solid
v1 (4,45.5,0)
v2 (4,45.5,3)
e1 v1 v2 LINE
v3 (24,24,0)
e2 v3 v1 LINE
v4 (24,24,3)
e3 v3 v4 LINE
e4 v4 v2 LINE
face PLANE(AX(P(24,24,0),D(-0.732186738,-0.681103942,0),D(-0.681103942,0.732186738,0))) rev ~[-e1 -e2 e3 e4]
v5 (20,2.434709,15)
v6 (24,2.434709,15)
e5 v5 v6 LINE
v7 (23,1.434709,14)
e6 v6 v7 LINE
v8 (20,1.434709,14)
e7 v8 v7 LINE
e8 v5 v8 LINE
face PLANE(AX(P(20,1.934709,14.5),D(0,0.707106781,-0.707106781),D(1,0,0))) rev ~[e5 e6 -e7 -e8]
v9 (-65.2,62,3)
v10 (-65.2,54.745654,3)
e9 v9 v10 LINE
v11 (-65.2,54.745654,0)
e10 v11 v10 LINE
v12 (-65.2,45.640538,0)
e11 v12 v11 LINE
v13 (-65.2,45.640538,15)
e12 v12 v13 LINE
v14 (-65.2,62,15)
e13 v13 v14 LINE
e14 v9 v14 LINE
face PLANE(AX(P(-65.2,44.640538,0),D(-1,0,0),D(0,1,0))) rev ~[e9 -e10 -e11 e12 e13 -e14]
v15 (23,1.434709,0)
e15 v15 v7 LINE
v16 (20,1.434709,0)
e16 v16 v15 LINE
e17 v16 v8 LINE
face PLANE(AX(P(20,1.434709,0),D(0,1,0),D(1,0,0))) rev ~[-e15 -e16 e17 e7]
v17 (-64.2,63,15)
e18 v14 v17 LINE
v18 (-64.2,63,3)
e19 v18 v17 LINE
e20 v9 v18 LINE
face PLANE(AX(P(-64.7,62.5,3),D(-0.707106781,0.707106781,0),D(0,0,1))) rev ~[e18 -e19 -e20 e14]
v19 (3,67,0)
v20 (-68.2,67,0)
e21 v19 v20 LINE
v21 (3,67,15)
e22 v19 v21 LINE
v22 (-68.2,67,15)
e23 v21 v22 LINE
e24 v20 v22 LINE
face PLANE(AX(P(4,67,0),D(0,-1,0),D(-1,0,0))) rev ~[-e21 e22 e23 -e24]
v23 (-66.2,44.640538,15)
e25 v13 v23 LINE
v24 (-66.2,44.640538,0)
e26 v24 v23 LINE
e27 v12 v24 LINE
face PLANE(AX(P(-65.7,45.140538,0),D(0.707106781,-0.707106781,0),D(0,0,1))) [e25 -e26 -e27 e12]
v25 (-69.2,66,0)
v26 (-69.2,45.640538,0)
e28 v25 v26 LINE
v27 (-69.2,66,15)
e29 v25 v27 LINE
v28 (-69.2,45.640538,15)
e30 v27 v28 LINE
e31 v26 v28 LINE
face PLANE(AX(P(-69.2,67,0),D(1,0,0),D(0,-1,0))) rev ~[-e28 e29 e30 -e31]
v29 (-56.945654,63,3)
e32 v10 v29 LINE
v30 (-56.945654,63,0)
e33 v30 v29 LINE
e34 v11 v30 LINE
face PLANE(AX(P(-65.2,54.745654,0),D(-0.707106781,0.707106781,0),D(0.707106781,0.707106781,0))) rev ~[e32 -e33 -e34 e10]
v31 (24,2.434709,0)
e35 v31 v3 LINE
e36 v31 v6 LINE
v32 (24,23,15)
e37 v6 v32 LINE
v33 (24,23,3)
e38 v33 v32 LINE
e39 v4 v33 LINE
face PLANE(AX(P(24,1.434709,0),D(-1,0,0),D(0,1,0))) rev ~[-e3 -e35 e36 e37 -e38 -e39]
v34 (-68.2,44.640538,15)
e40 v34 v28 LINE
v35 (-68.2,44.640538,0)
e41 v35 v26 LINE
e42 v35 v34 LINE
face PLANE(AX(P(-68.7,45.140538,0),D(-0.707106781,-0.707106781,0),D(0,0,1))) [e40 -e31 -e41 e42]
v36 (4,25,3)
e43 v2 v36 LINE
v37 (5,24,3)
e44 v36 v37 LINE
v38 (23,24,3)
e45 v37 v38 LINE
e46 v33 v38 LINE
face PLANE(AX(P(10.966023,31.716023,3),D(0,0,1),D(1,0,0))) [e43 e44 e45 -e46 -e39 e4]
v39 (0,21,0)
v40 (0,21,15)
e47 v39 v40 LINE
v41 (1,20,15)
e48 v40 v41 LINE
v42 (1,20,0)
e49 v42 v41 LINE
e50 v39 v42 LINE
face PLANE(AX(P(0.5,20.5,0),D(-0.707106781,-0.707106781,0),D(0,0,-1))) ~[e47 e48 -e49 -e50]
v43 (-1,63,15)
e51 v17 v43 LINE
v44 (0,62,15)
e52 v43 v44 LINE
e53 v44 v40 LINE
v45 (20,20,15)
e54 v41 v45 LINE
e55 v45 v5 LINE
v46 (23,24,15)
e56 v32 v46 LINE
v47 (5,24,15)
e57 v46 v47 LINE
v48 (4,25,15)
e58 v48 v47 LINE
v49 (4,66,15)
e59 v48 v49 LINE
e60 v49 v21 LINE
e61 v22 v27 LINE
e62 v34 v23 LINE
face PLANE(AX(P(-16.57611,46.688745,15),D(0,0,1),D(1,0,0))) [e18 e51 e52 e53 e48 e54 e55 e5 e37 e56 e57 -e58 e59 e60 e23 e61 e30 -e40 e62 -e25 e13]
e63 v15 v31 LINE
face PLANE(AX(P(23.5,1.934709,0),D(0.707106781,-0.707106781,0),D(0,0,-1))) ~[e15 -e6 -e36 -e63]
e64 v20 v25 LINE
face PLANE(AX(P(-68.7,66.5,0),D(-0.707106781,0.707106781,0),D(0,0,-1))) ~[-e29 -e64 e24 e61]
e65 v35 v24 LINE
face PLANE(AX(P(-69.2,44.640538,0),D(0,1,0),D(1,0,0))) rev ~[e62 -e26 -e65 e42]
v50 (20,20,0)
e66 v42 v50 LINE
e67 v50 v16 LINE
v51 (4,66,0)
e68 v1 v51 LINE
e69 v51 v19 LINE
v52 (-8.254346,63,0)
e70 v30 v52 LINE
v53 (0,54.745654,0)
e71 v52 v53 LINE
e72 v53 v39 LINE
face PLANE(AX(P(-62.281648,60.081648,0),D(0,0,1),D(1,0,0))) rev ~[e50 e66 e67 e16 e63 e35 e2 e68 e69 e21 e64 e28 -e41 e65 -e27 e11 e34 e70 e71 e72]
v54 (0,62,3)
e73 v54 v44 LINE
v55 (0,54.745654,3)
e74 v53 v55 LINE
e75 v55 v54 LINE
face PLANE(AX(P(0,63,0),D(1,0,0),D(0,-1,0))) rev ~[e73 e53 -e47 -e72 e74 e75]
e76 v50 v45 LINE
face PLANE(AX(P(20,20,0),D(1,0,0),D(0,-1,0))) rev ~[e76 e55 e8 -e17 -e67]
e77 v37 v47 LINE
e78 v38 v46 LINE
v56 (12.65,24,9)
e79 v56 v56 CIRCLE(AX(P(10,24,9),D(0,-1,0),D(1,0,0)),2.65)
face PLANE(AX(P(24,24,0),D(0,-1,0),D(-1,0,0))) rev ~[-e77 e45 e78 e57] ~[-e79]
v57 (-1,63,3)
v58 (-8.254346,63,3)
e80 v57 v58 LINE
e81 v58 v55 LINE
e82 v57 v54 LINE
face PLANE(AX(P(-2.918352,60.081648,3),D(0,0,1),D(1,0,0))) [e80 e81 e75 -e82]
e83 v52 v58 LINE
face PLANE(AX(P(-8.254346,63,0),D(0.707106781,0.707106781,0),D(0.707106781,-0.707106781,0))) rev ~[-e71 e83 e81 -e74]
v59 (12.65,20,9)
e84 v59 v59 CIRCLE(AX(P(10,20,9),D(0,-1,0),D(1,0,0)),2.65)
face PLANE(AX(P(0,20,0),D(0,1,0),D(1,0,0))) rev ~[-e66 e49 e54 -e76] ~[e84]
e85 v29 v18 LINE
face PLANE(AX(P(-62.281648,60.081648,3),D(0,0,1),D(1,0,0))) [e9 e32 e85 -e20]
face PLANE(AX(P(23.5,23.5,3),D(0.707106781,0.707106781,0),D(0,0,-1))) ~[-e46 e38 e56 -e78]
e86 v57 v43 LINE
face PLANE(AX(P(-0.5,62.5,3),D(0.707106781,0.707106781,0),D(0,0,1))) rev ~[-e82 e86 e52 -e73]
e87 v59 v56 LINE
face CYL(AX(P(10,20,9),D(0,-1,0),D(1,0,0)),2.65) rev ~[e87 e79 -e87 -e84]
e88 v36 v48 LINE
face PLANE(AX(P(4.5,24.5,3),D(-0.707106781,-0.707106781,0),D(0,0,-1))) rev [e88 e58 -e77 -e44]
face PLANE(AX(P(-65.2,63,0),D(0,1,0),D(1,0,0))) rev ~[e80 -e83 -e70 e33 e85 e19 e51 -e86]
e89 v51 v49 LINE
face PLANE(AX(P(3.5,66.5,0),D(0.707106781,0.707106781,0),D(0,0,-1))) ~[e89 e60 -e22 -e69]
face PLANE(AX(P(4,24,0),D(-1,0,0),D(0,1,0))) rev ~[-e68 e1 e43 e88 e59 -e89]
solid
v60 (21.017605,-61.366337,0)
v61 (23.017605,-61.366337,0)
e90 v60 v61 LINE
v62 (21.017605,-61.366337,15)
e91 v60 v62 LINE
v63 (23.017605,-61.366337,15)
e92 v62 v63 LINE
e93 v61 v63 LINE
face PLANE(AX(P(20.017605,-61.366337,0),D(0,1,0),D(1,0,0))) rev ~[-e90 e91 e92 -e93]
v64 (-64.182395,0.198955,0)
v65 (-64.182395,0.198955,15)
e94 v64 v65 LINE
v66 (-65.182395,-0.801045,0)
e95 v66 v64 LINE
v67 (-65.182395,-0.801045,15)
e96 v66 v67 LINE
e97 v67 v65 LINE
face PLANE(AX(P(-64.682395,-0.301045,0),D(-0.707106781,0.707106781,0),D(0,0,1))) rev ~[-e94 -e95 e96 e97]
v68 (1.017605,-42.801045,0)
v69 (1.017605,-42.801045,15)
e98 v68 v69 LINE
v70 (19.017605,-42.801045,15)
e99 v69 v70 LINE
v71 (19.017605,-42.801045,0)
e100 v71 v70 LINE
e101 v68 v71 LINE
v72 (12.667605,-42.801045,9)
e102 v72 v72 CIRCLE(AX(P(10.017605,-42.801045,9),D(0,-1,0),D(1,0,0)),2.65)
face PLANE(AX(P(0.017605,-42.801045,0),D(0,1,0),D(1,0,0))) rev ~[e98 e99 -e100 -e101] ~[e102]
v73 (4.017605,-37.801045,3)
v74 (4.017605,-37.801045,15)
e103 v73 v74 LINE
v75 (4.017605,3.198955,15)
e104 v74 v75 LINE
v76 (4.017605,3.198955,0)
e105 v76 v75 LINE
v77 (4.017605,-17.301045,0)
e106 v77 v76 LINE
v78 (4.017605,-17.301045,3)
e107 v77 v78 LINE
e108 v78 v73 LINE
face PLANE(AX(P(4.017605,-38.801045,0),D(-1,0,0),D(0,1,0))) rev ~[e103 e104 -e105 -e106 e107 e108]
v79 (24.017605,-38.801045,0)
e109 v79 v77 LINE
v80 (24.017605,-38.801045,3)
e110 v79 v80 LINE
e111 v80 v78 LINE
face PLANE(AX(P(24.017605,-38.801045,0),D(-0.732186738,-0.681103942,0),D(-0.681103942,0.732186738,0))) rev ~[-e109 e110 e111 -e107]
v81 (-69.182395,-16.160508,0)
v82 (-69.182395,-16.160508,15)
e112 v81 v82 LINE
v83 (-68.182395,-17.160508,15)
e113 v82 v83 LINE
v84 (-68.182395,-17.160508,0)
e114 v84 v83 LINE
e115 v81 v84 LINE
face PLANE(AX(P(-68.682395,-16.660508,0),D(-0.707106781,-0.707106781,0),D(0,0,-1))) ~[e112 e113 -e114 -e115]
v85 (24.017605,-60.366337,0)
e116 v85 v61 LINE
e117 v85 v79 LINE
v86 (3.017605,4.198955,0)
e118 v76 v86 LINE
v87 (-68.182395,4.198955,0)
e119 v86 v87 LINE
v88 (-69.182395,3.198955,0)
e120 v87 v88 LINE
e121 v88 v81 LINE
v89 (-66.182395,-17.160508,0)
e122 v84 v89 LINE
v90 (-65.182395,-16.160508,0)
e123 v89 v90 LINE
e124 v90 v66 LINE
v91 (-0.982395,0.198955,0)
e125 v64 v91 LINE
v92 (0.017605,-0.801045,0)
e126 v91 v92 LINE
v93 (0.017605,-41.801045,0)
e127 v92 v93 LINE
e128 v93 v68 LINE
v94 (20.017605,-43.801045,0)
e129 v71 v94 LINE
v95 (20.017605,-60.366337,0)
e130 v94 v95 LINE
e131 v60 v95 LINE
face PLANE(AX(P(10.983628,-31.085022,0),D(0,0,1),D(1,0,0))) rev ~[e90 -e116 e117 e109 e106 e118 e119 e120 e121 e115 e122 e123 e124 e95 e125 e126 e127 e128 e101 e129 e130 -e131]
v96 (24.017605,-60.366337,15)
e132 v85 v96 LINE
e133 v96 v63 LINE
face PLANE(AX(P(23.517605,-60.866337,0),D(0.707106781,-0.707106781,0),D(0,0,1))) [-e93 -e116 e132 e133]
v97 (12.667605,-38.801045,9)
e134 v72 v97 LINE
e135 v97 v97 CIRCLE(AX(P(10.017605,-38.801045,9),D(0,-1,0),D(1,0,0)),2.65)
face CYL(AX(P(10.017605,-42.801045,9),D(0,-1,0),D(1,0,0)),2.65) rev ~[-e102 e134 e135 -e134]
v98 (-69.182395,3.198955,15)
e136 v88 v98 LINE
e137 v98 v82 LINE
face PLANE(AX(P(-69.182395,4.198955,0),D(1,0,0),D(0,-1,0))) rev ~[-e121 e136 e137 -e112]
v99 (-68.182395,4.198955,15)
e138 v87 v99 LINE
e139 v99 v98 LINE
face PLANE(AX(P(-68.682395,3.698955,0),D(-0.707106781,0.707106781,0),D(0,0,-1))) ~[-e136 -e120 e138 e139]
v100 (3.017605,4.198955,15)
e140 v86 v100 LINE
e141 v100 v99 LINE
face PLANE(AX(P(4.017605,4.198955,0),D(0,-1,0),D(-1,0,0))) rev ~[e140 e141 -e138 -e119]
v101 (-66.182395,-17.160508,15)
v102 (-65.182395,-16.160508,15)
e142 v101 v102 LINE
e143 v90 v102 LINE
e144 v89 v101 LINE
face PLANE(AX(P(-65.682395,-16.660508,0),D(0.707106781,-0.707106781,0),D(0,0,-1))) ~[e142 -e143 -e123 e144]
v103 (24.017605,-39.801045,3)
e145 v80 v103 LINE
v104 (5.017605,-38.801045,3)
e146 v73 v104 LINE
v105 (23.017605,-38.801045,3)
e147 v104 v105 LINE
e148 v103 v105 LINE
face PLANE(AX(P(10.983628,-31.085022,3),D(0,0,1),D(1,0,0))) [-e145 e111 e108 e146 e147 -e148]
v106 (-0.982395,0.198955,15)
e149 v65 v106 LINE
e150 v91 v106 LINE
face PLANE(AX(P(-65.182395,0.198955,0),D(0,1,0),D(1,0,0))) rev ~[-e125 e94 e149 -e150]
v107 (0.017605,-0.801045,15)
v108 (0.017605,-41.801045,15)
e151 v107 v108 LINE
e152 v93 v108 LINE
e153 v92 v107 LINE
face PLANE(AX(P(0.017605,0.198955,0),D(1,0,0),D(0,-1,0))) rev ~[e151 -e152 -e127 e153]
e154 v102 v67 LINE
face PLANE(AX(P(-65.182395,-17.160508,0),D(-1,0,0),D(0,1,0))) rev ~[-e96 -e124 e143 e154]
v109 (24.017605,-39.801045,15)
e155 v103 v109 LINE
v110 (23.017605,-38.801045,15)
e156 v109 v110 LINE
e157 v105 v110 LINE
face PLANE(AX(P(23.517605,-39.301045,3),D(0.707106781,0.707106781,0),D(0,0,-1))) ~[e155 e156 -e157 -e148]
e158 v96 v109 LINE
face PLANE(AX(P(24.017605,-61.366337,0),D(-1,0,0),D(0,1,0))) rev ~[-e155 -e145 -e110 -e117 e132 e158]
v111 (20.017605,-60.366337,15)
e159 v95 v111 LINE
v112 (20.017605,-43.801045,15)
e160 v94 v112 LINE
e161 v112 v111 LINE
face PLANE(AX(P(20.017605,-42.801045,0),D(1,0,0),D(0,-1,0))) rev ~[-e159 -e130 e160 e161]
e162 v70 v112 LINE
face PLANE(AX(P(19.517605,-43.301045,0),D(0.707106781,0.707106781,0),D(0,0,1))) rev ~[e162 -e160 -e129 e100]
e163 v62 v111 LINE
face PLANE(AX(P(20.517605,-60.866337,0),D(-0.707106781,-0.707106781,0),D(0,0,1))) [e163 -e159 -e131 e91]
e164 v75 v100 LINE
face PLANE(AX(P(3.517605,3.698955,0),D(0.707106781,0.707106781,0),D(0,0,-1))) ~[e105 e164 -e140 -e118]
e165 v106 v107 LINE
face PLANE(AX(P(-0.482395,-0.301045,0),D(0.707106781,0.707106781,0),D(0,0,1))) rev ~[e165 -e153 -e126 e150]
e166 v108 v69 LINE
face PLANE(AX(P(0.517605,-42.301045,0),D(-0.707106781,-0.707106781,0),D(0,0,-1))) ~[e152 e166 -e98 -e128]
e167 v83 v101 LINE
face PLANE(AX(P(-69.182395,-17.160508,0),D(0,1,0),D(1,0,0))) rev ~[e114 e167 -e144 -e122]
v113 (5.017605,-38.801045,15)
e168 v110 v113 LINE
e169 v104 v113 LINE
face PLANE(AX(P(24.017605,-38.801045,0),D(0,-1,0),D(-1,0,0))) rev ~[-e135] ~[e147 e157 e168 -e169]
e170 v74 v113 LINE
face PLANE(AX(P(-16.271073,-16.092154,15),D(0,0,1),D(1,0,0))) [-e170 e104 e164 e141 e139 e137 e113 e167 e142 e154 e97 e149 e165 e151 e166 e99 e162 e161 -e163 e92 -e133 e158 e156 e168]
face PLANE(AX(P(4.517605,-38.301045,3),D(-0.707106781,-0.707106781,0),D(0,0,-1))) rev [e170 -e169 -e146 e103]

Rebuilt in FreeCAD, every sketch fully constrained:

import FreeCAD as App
import Part
import Sketcher
Q = App.Units.Quantity


def edges_at(feature, points):
    """Names of the edges that pass closest to the given points."""
    edges = feature.Shape.Edges
    near = lambda p: min(range(len(edges)), key=lambda i: edges[i].distToShape(Part.Vertex(*p))[0])
    return sorted({f"Edge{near(p) + 1}" for p in points})


def add_polygon(sketch, points):
    """Adds a closed chain of lines whose ends are joined by coincident constraints."""
    first, n = sketch.GeometryCount, len(points)
    for a, b in zip(points, points[1:] + points[:1]):
        sketch.addGeometry(Part.LineSegment(App.Vector(*a, 0), App.Vector(*b, 0)), False)
    for i in range(n):
        sketch.addConstraint(Sketcher.Constraint("Coincident", first + i, 2, first + (i + 1) % n, 1))

doc = App.newDocument("Part")
body = doc.addObject("PartDesign::Body", "Body")

# Sketch on XY plane
sketch1 = doc.addObject("Sketcher::SketchObject", "Sketch")
body.addObject(sketch1)
sketch1.AttachmentSupport = (doc.XY_Plane, [""])
sketch1.MapMode = "FlatFace"
add_polygon(sketch1, [(20, 20), (20, 1.4), (24, 1.4), (24, 24), (4, 24), (4, 67), (-69.2, 67), (-69.2, 44.6), (-65.2, 44.6), (-65.2, 63), (0, 63), (0, 20)])  # lines 0-11
sketch1.addConstraint(Sketcher.Constraint("Vertical", 0))
sketch1.addConstraint(Sketcher.Constraint("Horizontal", 1))
sketch1.addConstraint(Sketcher.Constraint("Vertical", 2))
sketch1.addConstraint(Sketcher.Constraint("Horizontal", 3))
sketch1.addConstraint(Sketcher.Constraint("Vertical", 4))
sketch1.addConstraint(Sketcher.Constraint("Horizontal", 5))
sketch1.addConstraint(Sketcher.Constraint("Vertical", 6))
sketch1.addConstraint(Sketcher.Constraint("Horizontal", 7))
sketch1.addConstraint(Sketcher.Constraint("Vertical", 8))
sketch1.addConstraint(Sketcher.Constraint("Horizontal", 9))
sketch1.addConstraint(Sketcher.Constraint("Vertical", 10))
sketch1.addConstraint(Sketcher.Constraint("Horizontal", 11))
sketch1.addConstraint(Sketcher.Constraint("PointOnObject", 9, 2, -2))
sketch1.addConstraint(Sketcher.Constraint("Equal", 1, 7))
sketch1.addConstraint(Sketcher.Constraint("Equal", 3, 11))
sketch1.addConstraint(Sketcher.Constraint("Equal", 4, 10))
sketch1.addConstraint(Sketcher.Constraint("DistanceX", 1, 1, 1, 2, Q("4 mm")))
sketch1.addConstraint(Sketcher.Constraint("DistanceX", 3, 2, 3, 1, Q("20 mm")))
sketch1.addConstraint(Sketcher.Constraint("DistanceY", 4, 1, 4, 2, Q("43 mm")))
sketch1.addConstraint(Sketcher.Constraint("DistanceX", 5, 2, 5, 1, Q("73.2 mm")))
sketch1.addConstraint(Sketcher.Constraint("DistanceY", -1, 1, 2, 2, Q("24 mm")))
sketch1.addConstraint(Sketcher.Constraint("DistanceY", -1, 1, 8, 2, Q("63 mm")))
sketch1.addConstraint(Sketcher.Constraint("DistanceY", 0, 2, 0, 1, Q("18.565291 mm")))
sketch1.addConstraint(Sketcher.Constraint("DistanceY", 6, 2, 6, 1, Q("22.359462 mm")))
pad1 = doc.addObject("PartDesign::Pad", "Pad")
body.addObject(pad1)
pad1.Profile = sketch1
pad1.Length = 15

# Sketch on XY plane
sketch2 = doc.addObject("Sketcher::SketchObject", "Sketch001")
body.addObject(sketch2)
sketch2.AttachmentSupport = (doc.XY_Plane, [""])
sketch2.MapMode = "FlatFace"
add_polygon(sketch2, [(-65, 55), (-57, 63), (-65, 63)])  # lines 0-2
add_polygon(sketch2, [(-8, 63), (0, 55), (0, 63)])  # lines 3-5
add_polygon(sketch2, [(4, 24), (24, 24), (4, 46)])  # lines 6-8
sketch2.addConstraint(Sketcher.Constraint("Horizontal", 1))
sketch2.addConstraint(Sketcher.Constraint("Vertical", 2))
sketch2.addConstraint(Sketcher.Constraint("Vertical", 4))
sketch2.addConstraint(Sketcher.Constraint("Horizontal", 5))
sketch2.addConstraint(Sketcher.Constraint("Horizontal", 6))
sketch2.addConstraint(Sketcher.Constraint("Vertical", 8))
sketch2.addConstraint(Sketcher.Constraint("PointOnObject", 3, 2, -2))
sketch2.addConstraint(Sketcher.Constraint("Perpendicular", 0, 3))
sketch2.addConstraint(Sketcher.Constraint("Horizontal", 2, 2, 3, 2))
sketch2.addConstraint(Sketcher.Constraint("Horizontal", 1, 2, 4, 2))
sketch2.addConstraint(Sketcher.Constraint("Equal", 1, 5))
sketch2.addConstraint(Sketcher.Constraint("DistanceX", 6, 1, 6, 2, Q("20 mm")))
sketch2.addConstraint(Sketcher.Constraint("DistanceY", 8, 2, 8, 1, Q("21.5 mm")))
sketch2.addConstraint(Sketcher.Constraint("DistanceY", -1, 1, 0, 2, Q("63 mm")))
sketch2.addConstraint(Sketcher.Constraint("DistanceX", -1, 1, 6, 2, Q("24 mm")))
sketch2.addConstraint(Sketcher.Constraint("DistanceY", -1, 1, 6, 2, Q("24 mm")))
sketch2.addConstraint(Sketcher.Constraint("DistanceX", 1, 2, -1, 1, Q("65.2 mm")))
sketch2.addConstraint(Sketcher.Constraint("Distance", 0, Q("11.673408 mm")))
pad2 = doc.addObject("PartDesign::Pad", "Pad001")
body.addObject(pad2)
pad2.Profile = sketch2
pad2.Length = 3
doc.recompute()

chamfer = doc.addObject("PartDesign::Chamfer", "Chamfer")
body.addObject(chamfer)
chamfer.Base = (pad2, edges_at(pad2, [
    (0, 63, 9),
    (-65.2, 63, 9),
    (4, 24, 9),
    (24, 24, 9),
    (4, 67, 7.5),
    (0, 20, 7.5),
    (22, 1.435, 15),
    (24, 1.435, 7.5),
    (-69.2, 67, 7.5),
    (-69.2, 44.641, 7.5),
    (-65.2, 44.641, 7.5),
]))
chamfer.Size = 1

# Sketch on XZ plane
sketch3 = doc.addObject("Sketcher::SketchObject", "Sketch002")
body.addObject(sketch3)
sketch3.AttachmentSupport = (doc.XZ_Plane, [""])
sketch3.MapMode = "FlatFace"
sketch3.AttachmentOffset = App.Placement(App.Vector(0, 0, -20), App.Rotation())
sketch3.addGeometry(Part.Circle(App.Vector(10, 9, 0), App.Vector(0, 0, 1), 2.6), False)
sketch3.addConstraint(Sketcher.Constraint("Diameter", 0, Q("5.3 mm")))
sketch3.addConstraint(Sketcher.Constraint("DistanceX", -1, 1, 0, 3, Q("10 mm")))
sketch3.addConstraint(Sketcher.Constraint("DistanceY", -1, 1, 0, 3, Q("9 mm")))
pocket1 = doc.addObject("PartDesign::Pocket", "Pocket")
body.addObject(pocket1)
pocket1.Profile = sketch3
pocket1.Length = 25
body2 = doc.addObject("PartDesign::Body", "Body001")

# Sketch on XY plane
sketch4 = doc.addObject("Sketcher::SketchObject", "Sketch003")
body2.addObject(sketch4)
sketch4.AttachmentSupport = (doc.getObject("XY_Plane001"), [""])
sketch4.MapMode = "FlatFace"
add_polygon(sketch4, [(20, -42.8), (20, -61.4), (24, -61.4), (24, -38.8), (4, -38.8), (4, 4.2), (-69.2, 4.2), (-69.2, -17.2), (-65.2, -17.2), (-65.2, 0.2), (0, 0.2), (0, -42.8)])  # lines 0-11
sketch4.addConstraint(Sketcher.Constraint("Vertical", 0))
sketch4.addConstraint(Sketcher.Constraint("Horizontal", 1))
sketch4.addConstraint(Sketcher.Constraint("Vertical", 2))
sketch4.addConstraint(Sketcher.Constraint("Horizontal", 3))
sketch4.addConstraint(Sketcher.Constraint("Vertical", 4))
sketch4.addConstraint(Sketcher.Constraint("Horizontal", 5))
sketch4.addConstraint(Sketcher.Constraint("Vertical", 6))
sketch4.addConstraint(Sketcher.Constraint("Horizontal", 7))
sketch4.addConstraint(Sketcher.Constraint("Vertical", 8))
sketch4.addConstraint(Sketcher.Constraint("Horizontal", 9))
sketch4.addConstraint(Sketcher.Constraint("Vertical", 10))
sketch4.addConstraint(Sketcher.Constraint("Horizontal", 11))
sketch4.addConstraint(Sketcher.Constraint("Equal", 1, 7))
sketch4.addConstraint(Sketcher.Constraint("Equal", 3, 11))
sketch4.addConstraint(Sketcher.Constraint("Equal", 4, 10))
sketch4.addConstraint(Sketcher.Constraint("DistanceX", 1, 1, 1, 2, Q("4 mm")))
sketch4.addConstraint(Sketcher.Constraint("DistanceX", 3, 2, 3, 1, Q("20 mm")))
sketch4.addConstraint(Sketcher.Constraint("DistanceY", 4, 1, 4, 2, Q("43 mm")))
sketch4.addConstraint(Sketcher.Constraint("DistanceX", 5, 2, 5, 1, Q("73.2 mm")))
sketch4.addConstraint(Sketcher.Constraint("DistanceY", 8, 2, 5, 2, Q("4 mm")))
sketch4.addConstraint(Sketcher.Constraint("DistanceY", 0, 2, 0, 1, Q("18.565292 mm")))
sketch4.addConstraint(Sketcher.Constraint("DistanceY", 6, 2, 6, 1, Q("21.359463 mm")))
sketch4.addConstraint(Sketcher.Constraint("DistanceY", 6, 2, -1, 1, Q("17.160508 mm")))
sketch4.addConstraint(Sketcher.Constraint("DistanceX", -1, 1, 0, 2, Q("20.017605 mm")))
pad3 = doc.addObject("PartDesign::Pad", "Pad002")
body2.addObject(pad3)
pad3.Profile = sketch4
pad3.Length = 15

# Sketch on XY plane
sketch5 = doc.addObject("Sketcher::SketchObject", "Sketch004")
body2.addObject(sketch5)
sketch5.AttachmentSupport = (doc.getObject("XY_Plane001"), [""])
sketch5.MapMode = "FlatFace"
add_polygon(sketch5, [(4, -39), (24, -39), (4, -17)])  # lines 0-2
sketch5.addConstraint(Sketcher.Constraint("Horizontal", 0))
sketch5.addConstraint(Sketcher.Constraint("Vertical", 2))
sketch5.addConstraint(Sketcher.Constraint("DistanceX", 0, 1, 0, 2, Q("20 mm")))
sketch5.addConstraint(Sketcher.Constraint("DistanceY", 2, 2, 2, 1, Q("21.5 mm")))
sketch5.addConstraint(Sketcher.Constraint("DistanceX", -1, 1, 0, 2, Q("24.017605 mm")))
sketch5.addConstraint(Sketcher.Constraint("DistanceY", 0, 2, -1, 1, Q("38.801045 mm")))
pad4 = doc.addObject("PartDesign::Pad", "Pad003")
body2.addObject(pad4)
pad4.Profile = sketch5
pad4.Length = 3

# Sketch on XZ plane
sketch6 = doc.addObject("Sketcher::SketchObject", "Sketch005")
body2.addObject(sketch6)
sketch6.AttachmentSupport = (doc.getObject("XZ_Plane001"), [""])
sketch6.MapMode = "FlatFace"
sketch6.AttachmentOffset = App.Placement(App.Vector(0, 0, 42.801045), App.Rotation())
sketch6.addGeometry(Part.Circle(App.Vector(10, 9, 0), App.Vector(0, 0, 1), 2.6), False)
sketch6.addConstraint(Sketcher.Constraint("Diameter", 0, Q("5.3 mm")))
sketch6.addConstraint(Sketcher.Constraint("DistanceY", -1, 1, 0, 3, Q("9 mm")))
sketch6.addConstraint(Sketcher.Constraint("DistanceX", -1, 1, 0, 3, Q("10.017605 mm")))
pocket2 = doc.addObject("PartDesign::Pocket", "Pocket001")
body2.addObject(pocket2)
pocket2.Profile = sketch6
pocket2.Length = 25
doc.recompute()

chamfer2 = doc.addObject("PartDesign::Chamfer", "Chamfer001")
body2.addObject(chamfer2)
chamfer2.Base = (pocket2, edges_at(pocket2, [
    (-69.182, 4.199, 7.5),
    (-69.182, -17.161, 7.5),
    (-65.182, -17.161, 7.5),
    (-65.182, 0.199, 7.5),
    (0.018, -42.801, 7.5),
    (4.018, 4.199, 7.5),
    (0.018, 0.199, 7.5),
    (4.018, -38.801, 9),
    (24.018, -38.801, 9),
    (24.018, -61.366, 7.5),
    (20.018, -61.366, 7.5),
    (20.018, -42.801, 7.5),
]))
chamfer2.Size = 1

doc.recompute()
